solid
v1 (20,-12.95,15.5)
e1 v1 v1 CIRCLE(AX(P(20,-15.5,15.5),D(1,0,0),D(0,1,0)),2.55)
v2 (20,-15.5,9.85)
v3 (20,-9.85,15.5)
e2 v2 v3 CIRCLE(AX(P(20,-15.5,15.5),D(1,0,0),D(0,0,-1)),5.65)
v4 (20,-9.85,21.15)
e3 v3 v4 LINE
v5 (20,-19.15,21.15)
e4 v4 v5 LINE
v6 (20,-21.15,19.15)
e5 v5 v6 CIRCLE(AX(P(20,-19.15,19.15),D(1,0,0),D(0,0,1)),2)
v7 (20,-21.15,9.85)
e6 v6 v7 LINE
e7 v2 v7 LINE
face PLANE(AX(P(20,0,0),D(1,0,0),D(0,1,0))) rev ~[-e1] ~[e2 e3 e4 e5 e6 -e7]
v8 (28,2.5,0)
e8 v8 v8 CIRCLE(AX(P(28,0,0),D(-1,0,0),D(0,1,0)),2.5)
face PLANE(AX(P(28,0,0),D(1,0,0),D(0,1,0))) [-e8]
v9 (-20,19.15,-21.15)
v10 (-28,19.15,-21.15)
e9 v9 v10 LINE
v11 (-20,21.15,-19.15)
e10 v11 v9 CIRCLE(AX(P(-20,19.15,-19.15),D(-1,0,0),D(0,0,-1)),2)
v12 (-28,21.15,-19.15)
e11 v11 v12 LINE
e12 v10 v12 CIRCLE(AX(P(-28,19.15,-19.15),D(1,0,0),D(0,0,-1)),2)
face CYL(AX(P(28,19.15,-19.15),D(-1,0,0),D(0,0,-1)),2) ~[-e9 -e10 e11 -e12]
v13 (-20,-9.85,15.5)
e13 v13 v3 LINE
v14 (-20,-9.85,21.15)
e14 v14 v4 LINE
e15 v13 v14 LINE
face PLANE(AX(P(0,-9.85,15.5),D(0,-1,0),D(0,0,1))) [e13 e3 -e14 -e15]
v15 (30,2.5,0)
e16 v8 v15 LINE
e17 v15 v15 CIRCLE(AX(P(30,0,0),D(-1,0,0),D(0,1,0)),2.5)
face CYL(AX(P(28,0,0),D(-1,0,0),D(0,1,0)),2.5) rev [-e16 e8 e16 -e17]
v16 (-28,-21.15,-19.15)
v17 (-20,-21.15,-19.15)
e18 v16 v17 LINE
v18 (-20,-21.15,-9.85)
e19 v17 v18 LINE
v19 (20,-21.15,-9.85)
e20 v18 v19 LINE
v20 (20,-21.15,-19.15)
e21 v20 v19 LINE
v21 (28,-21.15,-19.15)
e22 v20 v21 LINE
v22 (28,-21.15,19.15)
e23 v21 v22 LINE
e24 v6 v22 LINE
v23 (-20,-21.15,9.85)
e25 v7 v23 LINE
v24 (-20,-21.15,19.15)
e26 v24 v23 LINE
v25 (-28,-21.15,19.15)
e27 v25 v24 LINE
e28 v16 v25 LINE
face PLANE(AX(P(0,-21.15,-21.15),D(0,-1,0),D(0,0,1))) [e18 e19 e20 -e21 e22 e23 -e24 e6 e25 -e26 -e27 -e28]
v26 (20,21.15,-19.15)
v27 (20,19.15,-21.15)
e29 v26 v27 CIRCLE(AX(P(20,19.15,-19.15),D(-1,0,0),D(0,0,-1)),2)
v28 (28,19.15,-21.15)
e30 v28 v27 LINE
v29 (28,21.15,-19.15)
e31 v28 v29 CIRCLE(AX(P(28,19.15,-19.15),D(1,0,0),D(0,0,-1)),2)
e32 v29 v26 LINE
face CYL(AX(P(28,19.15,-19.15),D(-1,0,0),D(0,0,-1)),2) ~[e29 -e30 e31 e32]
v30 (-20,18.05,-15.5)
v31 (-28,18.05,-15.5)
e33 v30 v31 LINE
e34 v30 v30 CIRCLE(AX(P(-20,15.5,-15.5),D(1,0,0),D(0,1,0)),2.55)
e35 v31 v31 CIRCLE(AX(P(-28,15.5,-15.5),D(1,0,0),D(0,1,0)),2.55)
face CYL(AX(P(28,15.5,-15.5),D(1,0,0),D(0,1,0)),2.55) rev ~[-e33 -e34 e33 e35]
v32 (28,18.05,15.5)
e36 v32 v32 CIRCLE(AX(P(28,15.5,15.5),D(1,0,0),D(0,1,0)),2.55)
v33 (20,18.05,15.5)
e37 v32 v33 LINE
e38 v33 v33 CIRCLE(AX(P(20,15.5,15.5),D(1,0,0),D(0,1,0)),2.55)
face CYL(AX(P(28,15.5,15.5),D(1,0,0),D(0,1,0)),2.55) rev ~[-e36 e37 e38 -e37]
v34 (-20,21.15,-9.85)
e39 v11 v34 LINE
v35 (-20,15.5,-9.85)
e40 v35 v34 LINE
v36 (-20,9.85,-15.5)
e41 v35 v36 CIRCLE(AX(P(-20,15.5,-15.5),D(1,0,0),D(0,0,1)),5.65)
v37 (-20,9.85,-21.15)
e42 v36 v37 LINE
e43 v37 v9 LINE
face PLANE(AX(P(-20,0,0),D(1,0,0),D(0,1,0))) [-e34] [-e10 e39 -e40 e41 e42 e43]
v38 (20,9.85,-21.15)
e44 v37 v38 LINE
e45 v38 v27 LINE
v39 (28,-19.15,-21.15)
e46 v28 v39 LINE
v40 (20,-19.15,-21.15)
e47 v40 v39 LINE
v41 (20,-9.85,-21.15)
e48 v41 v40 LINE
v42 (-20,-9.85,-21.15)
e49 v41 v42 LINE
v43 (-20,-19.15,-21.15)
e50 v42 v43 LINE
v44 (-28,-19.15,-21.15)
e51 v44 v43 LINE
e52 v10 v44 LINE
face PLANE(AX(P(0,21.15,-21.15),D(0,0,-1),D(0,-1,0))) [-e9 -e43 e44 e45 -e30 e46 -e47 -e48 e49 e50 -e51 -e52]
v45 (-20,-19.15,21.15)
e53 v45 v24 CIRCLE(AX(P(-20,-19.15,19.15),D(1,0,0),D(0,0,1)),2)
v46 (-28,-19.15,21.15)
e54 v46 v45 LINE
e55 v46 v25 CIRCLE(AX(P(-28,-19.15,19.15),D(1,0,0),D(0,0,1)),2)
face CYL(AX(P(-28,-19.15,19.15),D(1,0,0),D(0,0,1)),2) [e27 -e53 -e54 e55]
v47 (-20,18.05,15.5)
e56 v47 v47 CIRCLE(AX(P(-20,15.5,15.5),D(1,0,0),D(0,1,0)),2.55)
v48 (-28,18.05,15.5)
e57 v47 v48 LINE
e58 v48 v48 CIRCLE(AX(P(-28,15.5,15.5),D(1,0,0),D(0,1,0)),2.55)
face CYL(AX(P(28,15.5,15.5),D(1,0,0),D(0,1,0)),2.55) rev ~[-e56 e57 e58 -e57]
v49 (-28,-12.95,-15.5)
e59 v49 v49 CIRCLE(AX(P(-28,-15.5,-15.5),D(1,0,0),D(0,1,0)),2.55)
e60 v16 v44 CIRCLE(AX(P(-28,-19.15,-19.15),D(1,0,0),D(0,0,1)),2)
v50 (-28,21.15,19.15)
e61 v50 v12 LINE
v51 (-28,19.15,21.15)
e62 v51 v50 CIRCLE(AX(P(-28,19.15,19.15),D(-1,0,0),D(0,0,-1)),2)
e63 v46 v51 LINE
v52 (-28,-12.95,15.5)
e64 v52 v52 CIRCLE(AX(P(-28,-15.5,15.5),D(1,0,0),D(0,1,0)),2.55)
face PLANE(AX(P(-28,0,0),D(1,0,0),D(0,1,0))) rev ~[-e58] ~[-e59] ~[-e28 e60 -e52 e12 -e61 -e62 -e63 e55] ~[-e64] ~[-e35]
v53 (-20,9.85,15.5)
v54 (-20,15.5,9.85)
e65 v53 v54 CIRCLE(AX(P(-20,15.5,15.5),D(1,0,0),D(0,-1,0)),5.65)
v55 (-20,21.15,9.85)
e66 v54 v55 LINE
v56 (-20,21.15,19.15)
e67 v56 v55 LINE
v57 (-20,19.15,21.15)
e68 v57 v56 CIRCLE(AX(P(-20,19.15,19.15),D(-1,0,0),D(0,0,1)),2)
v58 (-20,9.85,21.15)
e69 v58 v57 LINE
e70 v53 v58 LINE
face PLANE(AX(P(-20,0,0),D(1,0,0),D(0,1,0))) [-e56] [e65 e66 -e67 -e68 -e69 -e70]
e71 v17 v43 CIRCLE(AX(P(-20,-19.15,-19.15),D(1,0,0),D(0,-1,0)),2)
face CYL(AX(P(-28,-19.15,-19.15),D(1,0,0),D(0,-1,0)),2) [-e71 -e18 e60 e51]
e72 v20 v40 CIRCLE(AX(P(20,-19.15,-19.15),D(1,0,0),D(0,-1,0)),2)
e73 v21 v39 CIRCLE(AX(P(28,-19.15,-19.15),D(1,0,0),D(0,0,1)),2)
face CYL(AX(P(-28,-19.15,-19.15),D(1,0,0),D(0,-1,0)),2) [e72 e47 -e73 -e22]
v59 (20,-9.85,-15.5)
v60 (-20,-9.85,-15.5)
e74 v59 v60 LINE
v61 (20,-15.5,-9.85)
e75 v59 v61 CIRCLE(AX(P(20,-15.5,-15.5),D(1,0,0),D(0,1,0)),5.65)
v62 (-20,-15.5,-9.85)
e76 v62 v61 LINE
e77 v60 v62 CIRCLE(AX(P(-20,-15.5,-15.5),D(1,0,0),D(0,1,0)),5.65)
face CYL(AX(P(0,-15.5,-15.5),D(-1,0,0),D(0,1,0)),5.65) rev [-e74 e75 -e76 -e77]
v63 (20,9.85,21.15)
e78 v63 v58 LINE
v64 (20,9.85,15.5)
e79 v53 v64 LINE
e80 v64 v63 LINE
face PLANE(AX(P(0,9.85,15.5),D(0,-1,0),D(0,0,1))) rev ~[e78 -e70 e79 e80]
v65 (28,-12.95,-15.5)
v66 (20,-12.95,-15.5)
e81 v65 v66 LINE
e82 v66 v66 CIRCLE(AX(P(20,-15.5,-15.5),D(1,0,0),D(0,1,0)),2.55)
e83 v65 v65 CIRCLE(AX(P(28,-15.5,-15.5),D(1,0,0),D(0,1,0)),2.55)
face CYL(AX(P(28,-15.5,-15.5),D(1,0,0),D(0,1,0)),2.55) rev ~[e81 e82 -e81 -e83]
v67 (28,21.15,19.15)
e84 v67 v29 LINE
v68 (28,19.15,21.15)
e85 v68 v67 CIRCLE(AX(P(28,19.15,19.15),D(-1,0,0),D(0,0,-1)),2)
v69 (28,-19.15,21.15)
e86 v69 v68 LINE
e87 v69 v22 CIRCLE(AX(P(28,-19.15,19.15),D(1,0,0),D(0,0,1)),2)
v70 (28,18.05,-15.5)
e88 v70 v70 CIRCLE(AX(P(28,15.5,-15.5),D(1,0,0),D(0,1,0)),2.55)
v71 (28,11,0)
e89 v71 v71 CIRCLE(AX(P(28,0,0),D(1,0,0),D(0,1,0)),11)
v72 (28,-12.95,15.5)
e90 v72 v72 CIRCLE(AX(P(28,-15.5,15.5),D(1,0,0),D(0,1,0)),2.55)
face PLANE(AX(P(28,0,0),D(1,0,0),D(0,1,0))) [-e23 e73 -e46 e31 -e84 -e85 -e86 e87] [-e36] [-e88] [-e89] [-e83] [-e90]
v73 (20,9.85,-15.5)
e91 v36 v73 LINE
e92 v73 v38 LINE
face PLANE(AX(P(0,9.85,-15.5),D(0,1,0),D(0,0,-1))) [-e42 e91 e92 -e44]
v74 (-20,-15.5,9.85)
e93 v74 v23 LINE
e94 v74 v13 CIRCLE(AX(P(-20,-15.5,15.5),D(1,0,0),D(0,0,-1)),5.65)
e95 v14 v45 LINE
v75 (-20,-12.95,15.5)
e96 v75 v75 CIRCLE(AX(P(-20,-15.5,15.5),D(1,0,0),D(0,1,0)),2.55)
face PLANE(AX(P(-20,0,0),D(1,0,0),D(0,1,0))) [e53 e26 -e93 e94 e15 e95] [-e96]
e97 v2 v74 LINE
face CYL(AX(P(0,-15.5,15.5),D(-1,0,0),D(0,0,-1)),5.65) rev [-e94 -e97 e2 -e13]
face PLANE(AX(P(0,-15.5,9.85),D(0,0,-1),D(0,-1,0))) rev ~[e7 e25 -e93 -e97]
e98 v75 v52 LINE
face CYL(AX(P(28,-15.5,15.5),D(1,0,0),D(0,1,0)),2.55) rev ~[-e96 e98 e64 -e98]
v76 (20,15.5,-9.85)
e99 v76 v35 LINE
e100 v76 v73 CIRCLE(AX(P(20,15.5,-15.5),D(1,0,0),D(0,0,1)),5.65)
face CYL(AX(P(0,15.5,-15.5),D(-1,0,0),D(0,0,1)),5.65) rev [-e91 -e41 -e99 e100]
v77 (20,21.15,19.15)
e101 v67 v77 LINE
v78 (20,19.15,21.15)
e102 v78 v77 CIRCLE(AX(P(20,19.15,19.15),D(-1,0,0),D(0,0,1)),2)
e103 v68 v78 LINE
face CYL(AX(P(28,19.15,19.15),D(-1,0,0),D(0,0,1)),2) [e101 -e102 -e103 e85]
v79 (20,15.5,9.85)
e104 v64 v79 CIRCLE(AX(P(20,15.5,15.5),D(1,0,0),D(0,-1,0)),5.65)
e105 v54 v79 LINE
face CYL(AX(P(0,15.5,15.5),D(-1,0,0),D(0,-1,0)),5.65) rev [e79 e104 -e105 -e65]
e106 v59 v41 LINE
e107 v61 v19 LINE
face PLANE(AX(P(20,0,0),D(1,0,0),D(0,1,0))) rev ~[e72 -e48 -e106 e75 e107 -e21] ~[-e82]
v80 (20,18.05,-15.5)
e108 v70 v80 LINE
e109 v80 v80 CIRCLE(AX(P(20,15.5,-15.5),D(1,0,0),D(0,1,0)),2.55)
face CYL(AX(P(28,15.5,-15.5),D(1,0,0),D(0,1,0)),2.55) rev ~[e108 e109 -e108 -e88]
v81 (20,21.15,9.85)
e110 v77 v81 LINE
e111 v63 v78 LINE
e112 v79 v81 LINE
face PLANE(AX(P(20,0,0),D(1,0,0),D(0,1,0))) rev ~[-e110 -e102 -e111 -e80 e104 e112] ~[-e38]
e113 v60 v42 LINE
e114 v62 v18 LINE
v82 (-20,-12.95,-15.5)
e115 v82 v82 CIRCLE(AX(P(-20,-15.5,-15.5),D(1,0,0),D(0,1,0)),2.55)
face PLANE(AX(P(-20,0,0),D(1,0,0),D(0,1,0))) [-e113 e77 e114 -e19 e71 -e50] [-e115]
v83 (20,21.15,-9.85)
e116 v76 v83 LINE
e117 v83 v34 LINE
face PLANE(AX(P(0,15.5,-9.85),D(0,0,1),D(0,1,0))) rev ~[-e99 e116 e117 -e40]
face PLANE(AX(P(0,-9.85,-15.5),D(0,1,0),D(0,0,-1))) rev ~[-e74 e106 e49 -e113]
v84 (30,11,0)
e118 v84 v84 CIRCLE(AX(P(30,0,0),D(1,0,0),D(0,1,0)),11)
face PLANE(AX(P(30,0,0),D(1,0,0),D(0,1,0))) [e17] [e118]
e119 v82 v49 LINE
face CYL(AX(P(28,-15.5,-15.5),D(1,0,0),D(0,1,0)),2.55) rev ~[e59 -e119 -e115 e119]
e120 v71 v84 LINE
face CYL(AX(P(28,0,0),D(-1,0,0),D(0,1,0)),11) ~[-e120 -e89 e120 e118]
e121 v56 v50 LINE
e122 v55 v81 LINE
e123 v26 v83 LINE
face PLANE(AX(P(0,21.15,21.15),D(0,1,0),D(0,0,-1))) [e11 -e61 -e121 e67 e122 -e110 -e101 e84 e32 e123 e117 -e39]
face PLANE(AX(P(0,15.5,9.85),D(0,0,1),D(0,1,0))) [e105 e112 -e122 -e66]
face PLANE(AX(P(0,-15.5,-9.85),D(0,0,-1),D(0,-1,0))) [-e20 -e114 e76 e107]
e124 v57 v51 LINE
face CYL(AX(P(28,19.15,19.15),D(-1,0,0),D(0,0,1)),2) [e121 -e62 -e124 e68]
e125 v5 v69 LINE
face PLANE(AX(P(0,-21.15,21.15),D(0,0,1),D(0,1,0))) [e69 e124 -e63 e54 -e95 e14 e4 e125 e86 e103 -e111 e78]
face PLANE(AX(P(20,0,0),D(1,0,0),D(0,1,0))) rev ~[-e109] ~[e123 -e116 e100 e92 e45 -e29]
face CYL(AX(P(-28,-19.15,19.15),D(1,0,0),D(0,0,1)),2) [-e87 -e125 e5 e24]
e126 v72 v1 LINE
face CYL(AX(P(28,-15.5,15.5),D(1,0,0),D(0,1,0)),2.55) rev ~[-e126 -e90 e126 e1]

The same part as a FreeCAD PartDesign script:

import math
import FreeCAD as App
import Part
import Sketcher


def edges_at(feature, points):
    """Names of the edges that pass closest to the given points."""
    edges = feature.Shape.Edges
    near = lambda p: min(range(len(edges)), key=lambda i: edges[i].distToShape(Part.Vertex(*p))[0])
    return sorted({f"Edge{near(p) + 1}" for p in points})

doc = App.newDocument("Part")
body = doc.addObject("PartDesign::Body", "Body")

# Sketch on YZ plane
sketch1 = body.newObject("Sketcher::SketchObject", "Sketch")
sketch1.AttachmentSupport = (doc.getObject("YZ_Plane"), [""])
sketch1.MapMode = "FlatFace"
sketch1.addGeometry([
    Part.LineSegment(App.Vector(21, 21, 0), App.Vector(-21, 21, 0)),
    Part.LineSegment(App.Vector(-21, 21, 0), App.Vector(-21, -21, 0)),
    Part.LineSegment(App.Vector(-21, -21, 0), App.Vector(21, -21, 0)),
    Part.LineSegment(App.Vector(21, -21, 0), App.Vector(21, 21, 0)),
], False)
sketch1.addConstraint([
    Sketcher.Constraint("Coincident", 0, 2, 1, 1),
    Sketcher.Constraint("Coincident", 1, 2, 2, 1),
    Sketcher.Constraint("Coincident", 2, 2, 3, 1),
    Sketcher.Constraint("Coincident", 3, 2, 0, 1),
    Sketcher.Constraint("Horizontal", 0),
    Sketcher.Constraint("Vertical", 1),
    Sketcher.Constraint("Horizontal", 2),
    Sketcher.Constraint("Vertical", 3),
    Sketcher.Constraint("Symmetric", 0, 2, 2, 2, -1, 1),
    Sketcher.Constraint("Equal", 2, 1),
    Sketcher.Constraint("DistanceX", 0, 2, 0, 1, 42.3),
])
pad1 = body.newObject("PartDesign::Pad", "Pad")
pad1.Profile = sketch1
pad1.Length = 56
pad1.Midplane = True

# Sketch on YZ plane
sketch2 = body.newObject("Sketcher::SketchObject", "Sketch001")
sketch2.AttachmentSupport = (doc.getObject("YZ_Plane"), [""])
sketch2.MapMode = "FlatFace"
sketch2.AttachmentOffset = App.Placement(App.Vector(0, 0, 28), App.Rotation())
sketch2.addGeometry([
    Part.Circle(App.Vector(0, 0, 0), App.Vector(0, 0, 1), 11),
    Part.Circle(App.Vector(0, 0, 0), App.Vector(0, 0, 1), 2.5),
], False)
sketch2.addConstraint([
    Sketcher.Constraint("Coincident", 0, 3, -1, 1),
    Sketcher.Constraint("Coincident", 1, 3, -1, 1),
    Sketcher.Constraint("Diameter", 0, 22.0),
    Sketcher.Constraint("Diameter", 1, 5.0),
])
pad2 = body.newObject("PartDesign::Pad", "Pad001")
pad2.Profile = sketch2
pad2.Length = 2
doc.recompute()

fillet = body.newObject("PartDesign::Fillet", "Fillet")
fillet.Base = (pad2, edges_at(pad2, [(0, 21.15, 21.15)]))
fillet.Radius = 2
doc.recompute()

polarpattern = body.newObject("PartDesign::PolarPattern", "PolarPattern")
polarpattern.Originals = [fillet]
polarpattern.Axis = (doc.getObject("X_Axis"), [""])
polarpattern.Angle = 360
polarpattern.Occurrences = 4
body.Tip = polarpattern

# Sketch on YZ plane
sketch3 = body.newObject("Sketcher::SketchObject", "Sketch002")
sketch3.AttachmentSupport = (doc.getObject("YZ_Plane"), [""])
sketch3.MapMode = "FlatFace"
sketch3.AttachmentOffset = App.Placement(App.Vector(0, 0, 28), App.Rotation())
sketch3.addGeometry([
    Part.Circle(App.Vector(15.5, 15.5, 0), App.Vector(0, 0, 1), 2.5),
    Part.Circle(App.Vector(15.5, -15.5, 0), App.Vector(0, 0, 1), 2.5),
    Part.Circle(App.Vector(-15.5, 15.5, 0), App.Vector(0, 0, 1), 2.5),
    Part.Circle(App.Vector(-15.5, -15.5, 0), App.Vector(0, 0, 1), 2.5),
], False)
sketch3.addConstraint([
    Sketcher.Constraint("Equal", 0, 1),
    Sketcher.Constraint("Equal", 1, 2),
    Sketcher.Constraint("Equal", 2, 3),
    Sketcher.Constraint("Symmetric", 1, 3, 2, 3, -1, 1),
    Sketcher.Constraint("Symmetric", 0, 3, 3, 3, -1, 1),
    Sketcher.Constraint("Symmetric", 0, 3, 2, 3, -2),
    Sketcher.Constraint("Diameter", 0, 5.1),
    Sketcher.Constraint("DistanceY", 1, 3, 0, 3, 31.0),
    Sketcher.Constraint("DistanceX", 2, 3, 0, 3, 31.0),
])
pocket1 = body.newObject("PartDesign::Pocket", "Pocket")
pocket1.Profile = sketch3
pocket1.Type = "ThroughAll"

# Sketch on YZ plane
sketch4 = body.newObject("Sketcher::SketchObject", "Sketch003")
sketch4.AttachmentSupport = (doc.getObject("YZ_Plane"), [""])
sketch4.MapMode = "FlatFace"
sketch4.addGeometry([
    Part.LineSegment(App.Vector(10, 21, 0), App.Vector(10, 16, 0)),  # 0
    Part.ArcOfCircle(Part.Circle(App.Vector(16, 16, 0), App.Vector(0, 0, 1), 6), math.radians(180), math.radians(270)),  # 1
    Part.LineSegment(App.Vector(16, 10, 0), App.Vector(21, 10, 0)),  # 2
    Part.LineSegment(App.Vector(21, 10, 0), App.Vector(21, 21, 0)),  # 3
    Part.LineSegment(App.Vector(21, 21, 0), App.Vector(10, 21, 0)),  # 4
    Part.ArcOfCircle(Part.Circle(App.Vector(16, -16, 0), App.Vector(0, 0, 1), 6), math.radians(90), math.radians(180)),  # 5
    Part.LineSegment(App.Vector(10, -16, 0), App.Vector(10, -21, 0)),  # 6
    Part.LineSegment(App.Vector(10, -21, 0), App.Vector(21, -21, 0)),  # 7
    Part.LineSegment(App.Vector(21, -21, 0), App.Vector(21, -10, 0)),  # 8
    Part.LineSegment(App.Vector(21, -10, 0), App.Vector(16, -10, 0)),  # 9
    Part.ArcOfCircle(Part.Circle(App.Vector(-16, 16, 0), App.Vector(0, 0, 1), 6), math.radians(-90), math.radians(0)),  # 10
    Part.LineSegment(App.Vector(-10, 16, 0), App.Vector(-10, 21, 0)),  # 11
    Part.LineSegment(App.Vector(-10, 21, 0), App.Vector(-21, 21, 0)),  # 12
    Part.LineSegment(App.Vector(-21, 21, 0), App.Vector(-21, 10, 0)),  # 13
    Part.LineSegment(App.Vector(-21, 10, 0), App.Vector(-16, 10, 0)),  # 14
    Part.ArcOfCircle(Part.Circle(App.Vector(-16, -16, 0), App.Vector(0, 0, 1), 6), math.radians(0), math.radians(90)),  # 15
    Part.LineSegment(App.Vector(-16, -10, 0), App.Vector(-21, -10, 0)),  # 16
    Part.LineSegment(App.Vector(-21, -10, 0), App.Vector(-21, -21, 0)),  # 17
    Part.LineSegment(App.Vector(-21, -21, 0), App.Vector(-10, -21, 0)),  # 18
    Part.LineSegment(App.Vector(-10, -21, 0), App.Vector(-10, -16, 0)),  # 19
], False)
sketch4.addConstraint([
    Sketcher.Constraint("Tangent", 0, 2, 1, 1),
    Sketcher.Constraint("Tangent", 1, 2, 2, 1),
    Sketcher.Constraint("Coincident", 2, 2, 3, 1),
    Sketcher.Constraint("Coincident", 3, 2, 4, 1),
    Sketcher.Constraint("Coincident", 4, 2, 0, 1),
    Sketcher.Constraint("Tangent", 5, 2, 6, 1),
    Sketcher.Constraint("Coincident", 6, 2, 7, 1),
    Sketcher.Constraint("Coincident", 7, 2, 8, 1),
    Sketcher.Constraint("Coincident", 8, 2, 9, 1),
    Sketcher.Constraint("Tangent", 9, 2, 5, 1),
    Sketcher.Constraint("Tangent", 10, 2, 11, 1),
    Sketcher.Constraint("Coincident", 11, 2, 12, 1),
    Sketcher.Constraint("Coincident", 12, 2, 13, 1),
    Sketcher.Constraint("Coincident", 13, 2, 14, 1),
    Sketcher.Constraint("Tangent", 14, 2, 10, 1),
    Sketcher.Constraint("Tangent", 15, 2, 16, 1),
    Sketcher.Constraint("Coincident", 16, 2, 17, 1),
    Sketcher.Constraint("Coincident", 17, 2, 18, 1),
    Sketcher.Constraint("Coincident", 18, 2, 19, 1),
    Sketcher.Constraint("Tangent", 19, 2, 15, 1),
    Sketcher.Constraint("Vertical", 0),
    Sketcher.Constraint("Horizontal", 2),
    Sketcher.Constraint("Vertical", 3),
    Sketcher.Constraint("Horizontal", 4),
    Sketcher.Constraint("Vertical", 6),
    Sketcher.Constraint("Horizontal", 7),
    Sketcher.Constraint("Vertical", 8),
    Sketcher.Constraint("Horizontal", 9),
    Sketcher.Constraint("Vertical", 11),
    Sketcher.Constraint("Horizontal", 12),
    Sketcher.Constraint("Vertical", 13),
    Sketcher.Constraint("Horizontal", 14),
    Sketcher.Constraint("Horizontal", 16),
    Sketcher.Constraint("Vertical", 17),
    Sketcher.Constraint("Horizontal", 18),
    Sketcher.Constraint("Vertical", 19),
    Sketcher.Constraint("Equal", 1, 5),
    Sketcher.Constraint("Equal", 5, 10),
    Sketcher.Constraint("Equal", 10, 15),
    Sketcher.Constraint("Symmetric", 5, 3, 10, 3, -1, 1),
    Sketcher.Constraint("Symmetric", 1, 3, 15, 3, -1, 1),
    Sketcher.Constraint("Symmetric", 7, 2, 12, 2, -1, 1),
    Sketcher.Constraint("Symmetric", 3, 2, 17, 2, -1, 1),
    Sketcher.Constraint("Symmetric", 1, 3, 10, 3, -2),
    Sketcher.Constraint("Symmetric", 3, 2, 12, 2, -2),
    Sketcher.Constraint("Equal", 16, 0),
    Sketcher.Constraint("Radius", 1, 5.65),
    Sketcher.Constraint("DistanceX", 4, 2, 4, 1, 11.3),
    Sketcher.Constraint("DistanceY", 5, 3, 1, 3, 31.0),
    Sketcher.Constraint("DistanceX", 10, 3, 1, 3, 31.0),
])
pocket2 = body.newObject("PartDesign::Pocket", "Pocket001")
pocket2.Profile = sketch4
pocket2.Length = 40
pocket2.Midplane = True

doc.recompute()
